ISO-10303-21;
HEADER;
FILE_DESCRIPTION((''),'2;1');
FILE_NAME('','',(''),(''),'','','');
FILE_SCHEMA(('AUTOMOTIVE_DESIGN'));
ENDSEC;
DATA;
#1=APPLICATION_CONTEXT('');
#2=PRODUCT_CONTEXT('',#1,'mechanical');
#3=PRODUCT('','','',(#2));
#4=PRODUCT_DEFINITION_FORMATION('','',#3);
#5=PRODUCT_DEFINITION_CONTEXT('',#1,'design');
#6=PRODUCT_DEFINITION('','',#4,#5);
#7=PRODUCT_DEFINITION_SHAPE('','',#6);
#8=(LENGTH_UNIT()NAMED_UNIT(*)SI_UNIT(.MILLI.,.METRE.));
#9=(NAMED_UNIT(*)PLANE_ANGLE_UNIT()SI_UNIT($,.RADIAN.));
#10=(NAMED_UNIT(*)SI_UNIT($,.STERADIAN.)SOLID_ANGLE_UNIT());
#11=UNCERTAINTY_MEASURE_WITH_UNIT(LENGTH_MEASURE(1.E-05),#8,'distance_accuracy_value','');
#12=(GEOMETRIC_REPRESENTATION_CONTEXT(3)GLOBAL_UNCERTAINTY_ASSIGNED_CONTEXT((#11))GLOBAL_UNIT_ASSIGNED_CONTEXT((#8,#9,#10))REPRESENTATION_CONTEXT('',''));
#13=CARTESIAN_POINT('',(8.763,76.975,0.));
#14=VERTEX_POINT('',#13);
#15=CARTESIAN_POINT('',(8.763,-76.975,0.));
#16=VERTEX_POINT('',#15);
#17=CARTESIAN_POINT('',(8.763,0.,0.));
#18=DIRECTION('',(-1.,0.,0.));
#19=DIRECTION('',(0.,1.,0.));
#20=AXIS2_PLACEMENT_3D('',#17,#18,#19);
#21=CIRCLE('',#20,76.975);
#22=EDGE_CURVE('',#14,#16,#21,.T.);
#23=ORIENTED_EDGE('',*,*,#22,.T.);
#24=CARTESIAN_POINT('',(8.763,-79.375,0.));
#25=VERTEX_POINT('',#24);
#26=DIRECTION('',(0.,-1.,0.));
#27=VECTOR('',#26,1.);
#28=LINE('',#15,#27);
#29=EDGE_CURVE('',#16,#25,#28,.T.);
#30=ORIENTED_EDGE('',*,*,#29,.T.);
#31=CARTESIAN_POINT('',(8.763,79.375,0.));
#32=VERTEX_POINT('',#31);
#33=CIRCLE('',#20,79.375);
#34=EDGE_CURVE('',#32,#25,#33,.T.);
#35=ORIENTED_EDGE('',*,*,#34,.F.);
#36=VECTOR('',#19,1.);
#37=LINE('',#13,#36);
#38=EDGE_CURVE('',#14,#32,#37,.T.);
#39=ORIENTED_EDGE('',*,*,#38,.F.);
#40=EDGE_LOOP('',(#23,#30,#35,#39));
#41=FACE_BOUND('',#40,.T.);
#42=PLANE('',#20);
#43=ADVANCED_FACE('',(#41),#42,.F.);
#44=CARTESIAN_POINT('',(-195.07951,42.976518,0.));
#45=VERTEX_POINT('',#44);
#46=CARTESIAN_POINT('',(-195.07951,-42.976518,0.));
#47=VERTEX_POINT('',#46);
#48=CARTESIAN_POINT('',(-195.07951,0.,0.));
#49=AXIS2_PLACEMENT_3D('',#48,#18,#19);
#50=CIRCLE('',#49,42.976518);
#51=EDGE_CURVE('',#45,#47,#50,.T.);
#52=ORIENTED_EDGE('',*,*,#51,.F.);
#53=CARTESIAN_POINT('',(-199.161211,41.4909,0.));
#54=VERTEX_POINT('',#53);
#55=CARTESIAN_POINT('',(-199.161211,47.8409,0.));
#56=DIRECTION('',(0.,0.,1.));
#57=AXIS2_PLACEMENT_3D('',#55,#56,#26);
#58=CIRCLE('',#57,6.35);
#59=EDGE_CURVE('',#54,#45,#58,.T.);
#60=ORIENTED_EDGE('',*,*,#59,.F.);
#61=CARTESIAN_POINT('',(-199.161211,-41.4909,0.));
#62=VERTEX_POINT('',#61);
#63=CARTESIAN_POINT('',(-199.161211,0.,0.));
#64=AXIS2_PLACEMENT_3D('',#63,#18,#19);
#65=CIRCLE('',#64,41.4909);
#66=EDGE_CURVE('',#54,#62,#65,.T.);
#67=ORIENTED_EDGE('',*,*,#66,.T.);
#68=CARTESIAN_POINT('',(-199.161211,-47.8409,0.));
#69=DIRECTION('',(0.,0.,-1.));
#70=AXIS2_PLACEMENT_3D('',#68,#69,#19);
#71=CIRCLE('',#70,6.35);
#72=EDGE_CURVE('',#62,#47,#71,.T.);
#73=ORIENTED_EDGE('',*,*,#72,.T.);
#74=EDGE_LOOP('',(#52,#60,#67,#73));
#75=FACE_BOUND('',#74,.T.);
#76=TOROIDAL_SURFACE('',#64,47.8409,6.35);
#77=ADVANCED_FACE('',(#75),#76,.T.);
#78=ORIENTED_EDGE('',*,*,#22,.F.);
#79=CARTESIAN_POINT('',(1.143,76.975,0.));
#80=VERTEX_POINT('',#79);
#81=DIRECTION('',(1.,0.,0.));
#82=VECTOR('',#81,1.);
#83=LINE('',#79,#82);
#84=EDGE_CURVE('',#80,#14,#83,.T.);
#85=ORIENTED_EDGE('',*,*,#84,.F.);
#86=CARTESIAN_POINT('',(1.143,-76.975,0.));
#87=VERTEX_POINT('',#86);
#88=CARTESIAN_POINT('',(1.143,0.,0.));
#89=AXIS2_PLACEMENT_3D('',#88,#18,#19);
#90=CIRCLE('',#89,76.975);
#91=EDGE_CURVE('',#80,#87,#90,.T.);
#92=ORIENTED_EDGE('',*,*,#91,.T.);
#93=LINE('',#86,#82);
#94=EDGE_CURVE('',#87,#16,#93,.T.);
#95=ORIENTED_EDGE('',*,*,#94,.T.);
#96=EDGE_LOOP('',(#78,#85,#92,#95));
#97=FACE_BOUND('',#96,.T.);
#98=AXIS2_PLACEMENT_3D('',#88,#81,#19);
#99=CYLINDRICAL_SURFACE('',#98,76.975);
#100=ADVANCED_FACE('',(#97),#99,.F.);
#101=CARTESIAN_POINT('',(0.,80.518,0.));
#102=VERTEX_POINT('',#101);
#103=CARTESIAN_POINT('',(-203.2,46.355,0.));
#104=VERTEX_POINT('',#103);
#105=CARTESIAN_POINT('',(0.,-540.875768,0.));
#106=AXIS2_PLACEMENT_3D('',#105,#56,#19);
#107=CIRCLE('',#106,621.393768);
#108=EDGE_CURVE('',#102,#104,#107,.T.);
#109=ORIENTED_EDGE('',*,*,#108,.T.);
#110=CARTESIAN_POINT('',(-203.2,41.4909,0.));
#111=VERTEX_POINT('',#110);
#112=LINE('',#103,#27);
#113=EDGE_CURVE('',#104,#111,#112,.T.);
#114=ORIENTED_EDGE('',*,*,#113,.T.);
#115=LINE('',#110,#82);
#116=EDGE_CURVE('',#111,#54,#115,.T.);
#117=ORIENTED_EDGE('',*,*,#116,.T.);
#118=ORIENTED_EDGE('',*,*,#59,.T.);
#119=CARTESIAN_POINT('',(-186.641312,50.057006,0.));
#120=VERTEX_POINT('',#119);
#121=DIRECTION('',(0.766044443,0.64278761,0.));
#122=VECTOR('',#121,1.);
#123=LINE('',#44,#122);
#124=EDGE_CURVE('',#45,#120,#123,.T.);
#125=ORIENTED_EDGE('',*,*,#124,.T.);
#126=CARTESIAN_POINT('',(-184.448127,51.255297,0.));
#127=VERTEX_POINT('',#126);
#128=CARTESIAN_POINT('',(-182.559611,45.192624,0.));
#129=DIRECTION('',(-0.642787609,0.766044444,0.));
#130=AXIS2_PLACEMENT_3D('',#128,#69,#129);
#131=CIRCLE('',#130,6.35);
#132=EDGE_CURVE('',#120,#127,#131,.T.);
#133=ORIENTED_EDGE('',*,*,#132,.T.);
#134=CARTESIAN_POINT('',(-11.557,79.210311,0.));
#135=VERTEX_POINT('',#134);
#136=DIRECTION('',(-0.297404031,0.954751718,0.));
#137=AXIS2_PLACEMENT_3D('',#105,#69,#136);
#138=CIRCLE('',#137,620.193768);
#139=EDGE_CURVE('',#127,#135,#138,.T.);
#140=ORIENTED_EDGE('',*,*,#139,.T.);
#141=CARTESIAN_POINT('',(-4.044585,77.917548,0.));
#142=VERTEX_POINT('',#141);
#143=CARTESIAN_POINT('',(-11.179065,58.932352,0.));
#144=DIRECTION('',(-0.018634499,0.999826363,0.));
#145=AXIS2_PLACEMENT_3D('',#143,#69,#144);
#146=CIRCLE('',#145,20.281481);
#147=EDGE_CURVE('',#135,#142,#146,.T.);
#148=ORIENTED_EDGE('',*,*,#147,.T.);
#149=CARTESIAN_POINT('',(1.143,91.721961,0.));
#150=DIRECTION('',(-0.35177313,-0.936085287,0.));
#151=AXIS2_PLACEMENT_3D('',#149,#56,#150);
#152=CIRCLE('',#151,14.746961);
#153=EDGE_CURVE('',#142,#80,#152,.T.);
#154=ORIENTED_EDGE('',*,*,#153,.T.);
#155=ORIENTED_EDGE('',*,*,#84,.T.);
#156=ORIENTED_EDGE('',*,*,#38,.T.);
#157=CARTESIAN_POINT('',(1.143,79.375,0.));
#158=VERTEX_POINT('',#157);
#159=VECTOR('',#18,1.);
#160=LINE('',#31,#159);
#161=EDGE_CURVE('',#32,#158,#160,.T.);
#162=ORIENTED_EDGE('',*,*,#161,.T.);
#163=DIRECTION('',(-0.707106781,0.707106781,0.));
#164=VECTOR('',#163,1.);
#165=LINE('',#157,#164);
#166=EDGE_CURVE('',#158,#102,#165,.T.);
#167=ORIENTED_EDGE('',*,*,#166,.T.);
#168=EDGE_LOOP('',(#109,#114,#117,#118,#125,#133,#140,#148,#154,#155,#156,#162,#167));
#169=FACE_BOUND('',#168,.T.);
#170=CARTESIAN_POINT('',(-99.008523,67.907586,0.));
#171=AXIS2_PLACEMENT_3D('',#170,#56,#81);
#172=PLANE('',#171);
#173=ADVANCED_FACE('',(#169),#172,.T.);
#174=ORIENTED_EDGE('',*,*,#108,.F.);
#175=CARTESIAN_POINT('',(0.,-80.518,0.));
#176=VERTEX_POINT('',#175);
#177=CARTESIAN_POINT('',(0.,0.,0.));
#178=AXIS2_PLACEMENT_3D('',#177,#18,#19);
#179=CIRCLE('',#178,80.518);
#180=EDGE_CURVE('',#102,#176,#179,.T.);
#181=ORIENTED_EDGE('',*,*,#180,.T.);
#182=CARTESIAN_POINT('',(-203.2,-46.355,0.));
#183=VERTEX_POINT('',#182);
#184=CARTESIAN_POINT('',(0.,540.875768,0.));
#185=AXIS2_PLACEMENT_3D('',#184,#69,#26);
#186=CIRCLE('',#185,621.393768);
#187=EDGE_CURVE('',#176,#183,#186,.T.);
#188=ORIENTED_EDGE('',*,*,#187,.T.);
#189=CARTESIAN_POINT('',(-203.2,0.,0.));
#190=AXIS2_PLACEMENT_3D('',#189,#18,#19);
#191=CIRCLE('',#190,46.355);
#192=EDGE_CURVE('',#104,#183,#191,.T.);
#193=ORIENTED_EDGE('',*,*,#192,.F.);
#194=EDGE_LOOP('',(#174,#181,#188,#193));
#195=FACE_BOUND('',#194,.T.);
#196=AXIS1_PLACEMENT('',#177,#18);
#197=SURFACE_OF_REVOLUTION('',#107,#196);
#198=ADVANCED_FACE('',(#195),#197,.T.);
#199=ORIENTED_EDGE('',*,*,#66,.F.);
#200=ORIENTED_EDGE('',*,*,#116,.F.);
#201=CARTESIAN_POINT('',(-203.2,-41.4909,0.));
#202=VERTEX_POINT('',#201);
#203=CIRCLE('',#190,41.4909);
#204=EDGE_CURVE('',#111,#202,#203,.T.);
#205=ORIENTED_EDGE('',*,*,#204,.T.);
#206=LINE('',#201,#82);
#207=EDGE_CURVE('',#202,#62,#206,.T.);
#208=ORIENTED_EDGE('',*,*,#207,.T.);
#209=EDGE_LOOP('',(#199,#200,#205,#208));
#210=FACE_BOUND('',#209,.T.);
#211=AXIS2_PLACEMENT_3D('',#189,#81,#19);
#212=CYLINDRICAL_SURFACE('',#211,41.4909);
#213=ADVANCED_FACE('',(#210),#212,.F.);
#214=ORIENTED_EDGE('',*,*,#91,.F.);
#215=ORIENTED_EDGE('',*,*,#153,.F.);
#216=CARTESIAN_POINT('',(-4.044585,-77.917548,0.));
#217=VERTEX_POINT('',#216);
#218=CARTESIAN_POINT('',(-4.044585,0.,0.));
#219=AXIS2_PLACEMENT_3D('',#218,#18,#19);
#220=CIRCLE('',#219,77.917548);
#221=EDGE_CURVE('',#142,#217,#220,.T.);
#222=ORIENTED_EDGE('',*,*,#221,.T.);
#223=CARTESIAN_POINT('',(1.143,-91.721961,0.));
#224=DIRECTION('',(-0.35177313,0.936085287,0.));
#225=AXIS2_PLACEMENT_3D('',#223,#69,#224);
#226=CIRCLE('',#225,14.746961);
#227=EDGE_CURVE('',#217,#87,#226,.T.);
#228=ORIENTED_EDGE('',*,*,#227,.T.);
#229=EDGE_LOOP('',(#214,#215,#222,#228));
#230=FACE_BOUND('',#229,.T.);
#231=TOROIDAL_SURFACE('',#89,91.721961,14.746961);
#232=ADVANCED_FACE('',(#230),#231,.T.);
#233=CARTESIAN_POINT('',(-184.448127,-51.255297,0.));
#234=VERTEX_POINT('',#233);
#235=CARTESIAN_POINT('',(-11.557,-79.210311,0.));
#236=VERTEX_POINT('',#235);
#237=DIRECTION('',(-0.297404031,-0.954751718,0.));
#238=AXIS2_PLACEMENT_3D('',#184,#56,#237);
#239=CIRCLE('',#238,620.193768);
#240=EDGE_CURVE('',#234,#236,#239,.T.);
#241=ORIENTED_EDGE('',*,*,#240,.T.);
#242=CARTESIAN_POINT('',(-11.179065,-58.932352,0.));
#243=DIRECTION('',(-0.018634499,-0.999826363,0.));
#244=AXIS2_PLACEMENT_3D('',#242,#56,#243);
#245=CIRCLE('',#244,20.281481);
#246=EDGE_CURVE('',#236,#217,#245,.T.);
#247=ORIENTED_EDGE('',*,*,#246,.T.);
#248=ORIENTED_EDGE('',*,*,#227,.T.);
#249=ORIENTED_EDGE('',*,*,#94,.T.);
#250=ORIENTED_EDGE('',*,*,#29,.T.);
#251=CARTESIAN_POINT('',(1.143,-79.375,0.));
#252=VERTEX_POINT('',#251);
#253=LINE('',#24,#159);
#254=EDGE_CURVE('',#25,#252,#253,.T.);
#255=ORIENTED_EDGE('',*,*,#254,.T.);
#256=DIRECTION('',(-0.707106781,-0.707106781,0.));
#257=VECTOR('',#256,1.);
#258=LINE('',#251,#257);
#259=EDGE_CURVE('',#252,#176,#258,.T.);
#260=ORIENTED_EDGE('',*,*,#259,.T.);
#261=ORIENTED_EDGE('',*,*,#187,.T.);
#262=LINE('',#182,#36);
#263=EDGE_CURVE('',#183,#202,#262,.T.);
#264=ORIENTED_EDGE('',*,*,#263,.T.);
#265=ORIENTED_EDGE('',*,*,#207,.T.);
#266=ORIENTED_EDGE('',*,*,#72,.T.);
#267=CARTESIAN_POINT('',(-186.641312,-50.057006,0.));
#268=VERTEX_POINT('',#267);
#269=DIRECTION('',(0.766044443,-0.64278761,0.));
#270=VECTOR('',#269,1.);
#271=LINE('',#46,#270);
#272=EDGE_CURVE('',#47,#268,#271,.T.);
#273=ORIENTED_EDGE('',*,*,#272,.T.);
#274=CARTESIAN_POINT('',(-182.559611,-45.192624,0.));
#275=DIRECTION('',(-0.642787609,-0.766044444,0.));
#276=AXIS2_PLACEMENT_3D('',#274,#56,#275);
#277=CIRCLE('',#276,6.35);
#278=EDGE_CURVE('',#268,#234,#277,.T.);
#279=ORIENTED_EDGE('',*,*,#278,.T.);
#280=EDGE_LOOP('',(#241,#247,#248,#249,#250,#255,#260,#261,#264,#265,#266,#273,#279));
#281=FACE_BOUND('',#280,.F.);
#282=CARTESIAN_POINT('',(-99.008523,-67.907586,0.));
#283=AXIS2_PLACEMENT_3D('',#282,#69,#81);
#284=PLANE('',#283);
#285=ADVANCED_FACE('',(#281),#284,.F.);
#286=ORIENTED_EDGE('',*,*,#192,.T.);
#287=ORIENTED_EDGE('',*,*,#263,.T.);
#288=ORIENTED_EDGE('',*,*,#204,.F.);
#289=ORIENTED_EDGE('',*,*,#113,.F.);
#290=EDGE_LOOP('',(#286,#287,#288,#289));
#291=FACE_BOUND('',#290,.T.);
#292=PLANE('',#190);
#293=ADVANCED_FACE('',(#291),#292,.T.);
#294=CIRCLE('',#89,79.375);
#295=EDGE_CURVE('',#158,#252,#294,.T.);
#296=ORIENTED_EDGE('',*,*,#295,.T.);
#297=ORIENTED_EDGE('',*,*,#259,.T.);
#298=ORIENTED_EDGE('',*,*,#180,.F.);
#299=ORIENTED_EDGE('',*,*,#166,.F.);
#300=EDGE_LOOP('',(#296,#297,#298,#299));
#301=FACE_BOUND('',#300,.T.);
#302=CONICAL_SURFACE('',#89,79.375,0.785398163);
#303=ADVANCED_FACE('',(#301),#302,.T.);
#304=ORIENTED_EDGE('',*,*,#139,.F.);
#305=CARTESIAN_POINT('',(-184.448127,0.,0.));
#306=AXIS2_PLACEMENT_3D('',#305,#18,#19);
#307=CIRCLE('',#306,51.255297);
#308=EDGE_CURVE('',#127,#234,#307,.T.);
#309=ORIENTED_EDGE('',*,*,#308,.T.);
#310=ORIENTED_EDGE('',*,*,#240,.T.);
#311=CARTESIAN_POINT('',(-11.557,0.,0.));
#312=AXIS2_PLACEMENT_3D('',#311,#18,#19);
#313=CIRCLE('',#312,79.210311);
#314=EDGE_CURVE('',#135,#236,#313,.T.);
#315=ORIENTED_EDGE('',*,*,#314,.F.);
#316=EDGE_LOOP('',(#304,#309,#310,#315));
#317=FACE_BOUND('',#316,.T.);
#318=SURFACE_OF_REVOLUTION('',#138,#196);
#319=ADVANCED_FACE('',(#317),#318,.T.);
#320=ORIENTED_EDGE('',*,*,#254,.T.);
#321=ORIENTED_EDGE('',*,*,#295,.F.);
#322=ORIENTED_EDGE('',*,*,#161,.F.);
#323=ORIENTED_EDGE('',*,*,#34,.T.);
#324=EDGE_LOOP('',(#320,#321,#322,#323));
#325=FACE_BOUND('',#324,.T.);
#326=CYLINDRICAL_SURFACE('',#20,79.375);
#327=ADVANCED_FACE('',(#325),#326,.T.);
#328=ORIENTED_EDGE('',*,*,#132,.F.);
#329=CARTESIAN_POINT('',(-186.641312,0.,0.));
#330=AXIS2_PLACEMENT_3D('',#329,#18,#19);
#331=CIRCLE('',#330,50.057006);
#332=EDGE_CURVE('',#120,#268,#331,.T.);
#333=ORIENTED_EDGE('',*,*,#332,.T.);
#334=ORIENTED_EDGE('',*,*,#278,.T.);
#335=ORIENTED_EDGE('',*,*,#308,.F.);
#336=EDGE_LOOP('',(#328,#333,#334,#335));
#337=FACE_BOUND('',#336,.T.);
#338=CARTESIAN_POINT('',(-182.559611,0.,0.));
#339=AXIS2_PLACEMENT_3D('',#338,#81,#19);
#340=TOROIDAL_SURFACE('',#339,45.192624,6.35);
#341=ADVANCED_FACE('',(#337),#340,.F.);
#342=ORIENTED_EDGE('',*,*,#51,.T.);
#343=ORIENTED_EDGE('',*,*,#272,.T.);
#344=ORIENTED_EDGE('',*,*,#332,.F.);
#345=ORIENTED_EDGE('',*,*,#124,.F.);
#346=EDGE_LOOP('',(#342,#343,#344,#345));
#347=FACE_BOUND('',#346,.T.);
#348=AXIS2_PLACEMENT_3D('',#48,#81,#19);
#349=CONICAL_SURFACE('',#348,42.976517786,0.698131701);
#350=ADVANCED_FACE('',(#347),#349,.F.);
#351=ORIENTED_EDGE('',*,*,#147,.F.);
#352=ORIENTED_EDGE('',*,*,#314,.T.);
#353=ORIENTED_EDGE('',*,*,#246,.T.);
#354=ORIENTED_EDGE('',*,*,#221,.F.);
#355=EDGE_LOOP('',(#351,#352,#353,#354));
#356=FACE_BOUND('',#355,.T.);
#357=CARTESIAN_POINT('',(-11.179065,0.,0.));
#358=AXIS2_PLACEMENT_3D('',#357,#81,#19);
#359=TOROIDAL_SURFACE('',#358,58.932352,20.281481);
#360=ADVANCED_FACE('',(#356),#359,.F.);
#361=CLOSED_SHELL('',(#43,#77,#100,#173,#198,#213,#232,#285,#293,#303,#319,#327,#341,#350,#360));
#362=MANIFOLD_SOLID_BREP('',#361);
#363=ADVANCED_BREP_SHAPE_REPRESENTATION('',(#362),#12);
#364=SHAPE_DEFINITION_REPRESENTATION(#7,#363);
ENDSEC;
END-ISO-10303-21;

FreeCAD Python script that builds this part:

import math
import FreeCAD as App
import Part
import Sketcher
from FreeCAD import Vector
Q = App.Units.Quantity

doc = App.newDocument("Part")
body = doc.addObject("PartDesign::Body", "Body")

# Sketch on XY plane
sketch1 = body.newObject("Sketcher::SketchObject", "Sketch")
sketch1.AttachmentSupport = (doc.getObject("XY_Plane"), [""])
sketch1.MapMode = "FlatFace"
sketch1.addGeometry([
    Part.LineSegment(Vector(-203.2, 46.355, 0), Vector(-203.2, 41.4909, 0)),  # 0
    Part.LineSegment(Vector(-203.2, 41.4909, 0), Vector(-199.161211, 41.4909, 0)),  # 1
    Part.ArcOfCircle(Part.Circle(Vector(-199.161211, 47.8409, 0), Vector(0, 0, 1), 6.35), math.radians(-90), math.radians(-50)),  # 2
    Part.LineSegment(Vector(-195.07951, 42.976518, 0), Vector(-186.641312, 50.057006, 0)),  # 3
    Part.ArcOfCircle(Part.Circle(Vector(-182.559611, 45.192624, 0), Vector(0, 0, 1), 6.35), math.radians(107.30175), math.radians(130)),  # 4
    Part.ArcOfCircle(Part.Circle(Vector(0, -540.875768, 0), Vector(0, 0, 1), 620.193768), math.radians(91.06774), math.radians(107.30175)),  # 5
    Part.ArcOfCircle(Part.Circle(Vector(-11.179065, 58.932352, 0), Vector(0, 0, 1), 20.281481), math.radians(69.404194), math.radians(91.06774)),  # 6
    Part.ArcOfCircle(Part.Circle(Vector(1.143, 91.721961, 0), Vector(0, 0, 1), 14.746961), math.radians(-110.595806), math.radians(-90)),  # 7
    Part.LineSegment(Vector(1.143, 76.975, 0), Vector(8.763, 76.975, 0)),  # 8
    Part.LineSegment(Vector(8.763, 76.975, 0), Vector(8.763, 79.375, 0)),  # 9
    Part.LineSegment(Vector(8.763, 79.375, 0), Vector(1.143, 79.375, 0)),  # 10
    Part.LineSegment(Vector(1.143, 79.375, 0), Vector(0, 80.518, 0)),  # 11
    Part.ArcOfCircle(Part.Circle(Vector(0, -540.875768, 0), Vector(0, 0, 1), 621.393768), math.radians(90), math.radians(109.087202)),  # 12
], False)
sketch1.addConstraint([
    Sketcher.Constraint("Coincident", 0, 2, 1, 1),
    Sketcher.Constraint("Tangent", 1, 2, 2, 1),
    Sketcher.Constraint("Tangent", 2, 2, 3, 1),
    Sketcher.Constraint("Tangent", 3, 2, 4, 2),
    Sketcher.Constraint("Tangent", 4, 1, 5, 2),
    Sketcher.Constraint("Tangent", 5, 1, 6, 2),
    Sketcher.Constraint("Tangent", 6, 1, 7, 1),
    Sketcher.Constraint("Tangent", 7, 2, 8, 1),
    Sketcher.Constraint("Coincident", 8, 2, 9, 1),
    Sketcher.Constraint("Coincident", 9, 2, 10, 1),
    Sketcher.Constraint("Coincident", 10, 2, 11, 1),
    Sketcher.Constraint("Coincident", 11, 2, 12, 1),
    Sketcher.Constraint("Coincident", 12, 2, 0, 1),
    Sketcher.Constraint("Vertical", 0),
    Sketcher.Constraint("Horizontal", 1),
    Sketcher.Constraint("Horizontal", 8),
    Sketcher.Constraint("Vertical", 9),
    Sketcher.Constraint("Horizontal", 10),
    Sketcher.Constraint("Coincident", 12, 3, 5, 3),
    Sketcher.Constraint("Equal", 2, 4),
    Sketcher.Constraint("PointOnObject", 5, 3, -2),
    Sketcher.Constraint("PointOnObject", 11, 2, -2),
    Sketcher.Constraint("Vertical", 7, 2, 10, 2),
    Sketcher.Constraint("Radius", 2, Q("0.25 in")),
    Sketcher.Constraint("DistanceX", 8, 1, 8, 2, Q("0.3 in")),
    Sketcher.Constraint("DistanceX", 0, 2, -1, 1, Q("8 in")),
    Sketcher.Constraint("Angle", 3, Q("40 deg")),
    Sketcher.Constraint("Angle", 11, Q("135 deg")),
    Sketcher.Constraint("DistanceY", -1, 1, 11, 2, Q("3.17 in")),
    Sketcher.Constraint("DistanceY", 0, 2, 0, 1, Q("0.1915 in")),
    Sketcher.Constraint("DistanceX", -1, 1, 7, 3, Q("0.045 in")),
    Sketcher.Constraint("Radius", 6, 20.281481),
    Sketcher.Constraint("Radius", 7, 14.746961),
    Sketcher.Constraint("DistanceY", 9, 1, 9, 2, 2.4),
    Sketcher.Constraint("DistanceY", -1, 1, 2, 3, Q("1.8835 in")),
    Sketcher.Constraint("Radius", 5, 620.193768),
    Sketcher.Constraint("DistanceX", 1, 1, 1, 2, 4.038789),
])
revolution = body.newObject("PartDesign::Revolution", "Revolution")
revolution.Profile = sketch1
revolution.ReferenceAxis = (sketch1, ["H_Axis"])
revolution.Angle = 180
revolution.Reversed = True

doc.recompute()
